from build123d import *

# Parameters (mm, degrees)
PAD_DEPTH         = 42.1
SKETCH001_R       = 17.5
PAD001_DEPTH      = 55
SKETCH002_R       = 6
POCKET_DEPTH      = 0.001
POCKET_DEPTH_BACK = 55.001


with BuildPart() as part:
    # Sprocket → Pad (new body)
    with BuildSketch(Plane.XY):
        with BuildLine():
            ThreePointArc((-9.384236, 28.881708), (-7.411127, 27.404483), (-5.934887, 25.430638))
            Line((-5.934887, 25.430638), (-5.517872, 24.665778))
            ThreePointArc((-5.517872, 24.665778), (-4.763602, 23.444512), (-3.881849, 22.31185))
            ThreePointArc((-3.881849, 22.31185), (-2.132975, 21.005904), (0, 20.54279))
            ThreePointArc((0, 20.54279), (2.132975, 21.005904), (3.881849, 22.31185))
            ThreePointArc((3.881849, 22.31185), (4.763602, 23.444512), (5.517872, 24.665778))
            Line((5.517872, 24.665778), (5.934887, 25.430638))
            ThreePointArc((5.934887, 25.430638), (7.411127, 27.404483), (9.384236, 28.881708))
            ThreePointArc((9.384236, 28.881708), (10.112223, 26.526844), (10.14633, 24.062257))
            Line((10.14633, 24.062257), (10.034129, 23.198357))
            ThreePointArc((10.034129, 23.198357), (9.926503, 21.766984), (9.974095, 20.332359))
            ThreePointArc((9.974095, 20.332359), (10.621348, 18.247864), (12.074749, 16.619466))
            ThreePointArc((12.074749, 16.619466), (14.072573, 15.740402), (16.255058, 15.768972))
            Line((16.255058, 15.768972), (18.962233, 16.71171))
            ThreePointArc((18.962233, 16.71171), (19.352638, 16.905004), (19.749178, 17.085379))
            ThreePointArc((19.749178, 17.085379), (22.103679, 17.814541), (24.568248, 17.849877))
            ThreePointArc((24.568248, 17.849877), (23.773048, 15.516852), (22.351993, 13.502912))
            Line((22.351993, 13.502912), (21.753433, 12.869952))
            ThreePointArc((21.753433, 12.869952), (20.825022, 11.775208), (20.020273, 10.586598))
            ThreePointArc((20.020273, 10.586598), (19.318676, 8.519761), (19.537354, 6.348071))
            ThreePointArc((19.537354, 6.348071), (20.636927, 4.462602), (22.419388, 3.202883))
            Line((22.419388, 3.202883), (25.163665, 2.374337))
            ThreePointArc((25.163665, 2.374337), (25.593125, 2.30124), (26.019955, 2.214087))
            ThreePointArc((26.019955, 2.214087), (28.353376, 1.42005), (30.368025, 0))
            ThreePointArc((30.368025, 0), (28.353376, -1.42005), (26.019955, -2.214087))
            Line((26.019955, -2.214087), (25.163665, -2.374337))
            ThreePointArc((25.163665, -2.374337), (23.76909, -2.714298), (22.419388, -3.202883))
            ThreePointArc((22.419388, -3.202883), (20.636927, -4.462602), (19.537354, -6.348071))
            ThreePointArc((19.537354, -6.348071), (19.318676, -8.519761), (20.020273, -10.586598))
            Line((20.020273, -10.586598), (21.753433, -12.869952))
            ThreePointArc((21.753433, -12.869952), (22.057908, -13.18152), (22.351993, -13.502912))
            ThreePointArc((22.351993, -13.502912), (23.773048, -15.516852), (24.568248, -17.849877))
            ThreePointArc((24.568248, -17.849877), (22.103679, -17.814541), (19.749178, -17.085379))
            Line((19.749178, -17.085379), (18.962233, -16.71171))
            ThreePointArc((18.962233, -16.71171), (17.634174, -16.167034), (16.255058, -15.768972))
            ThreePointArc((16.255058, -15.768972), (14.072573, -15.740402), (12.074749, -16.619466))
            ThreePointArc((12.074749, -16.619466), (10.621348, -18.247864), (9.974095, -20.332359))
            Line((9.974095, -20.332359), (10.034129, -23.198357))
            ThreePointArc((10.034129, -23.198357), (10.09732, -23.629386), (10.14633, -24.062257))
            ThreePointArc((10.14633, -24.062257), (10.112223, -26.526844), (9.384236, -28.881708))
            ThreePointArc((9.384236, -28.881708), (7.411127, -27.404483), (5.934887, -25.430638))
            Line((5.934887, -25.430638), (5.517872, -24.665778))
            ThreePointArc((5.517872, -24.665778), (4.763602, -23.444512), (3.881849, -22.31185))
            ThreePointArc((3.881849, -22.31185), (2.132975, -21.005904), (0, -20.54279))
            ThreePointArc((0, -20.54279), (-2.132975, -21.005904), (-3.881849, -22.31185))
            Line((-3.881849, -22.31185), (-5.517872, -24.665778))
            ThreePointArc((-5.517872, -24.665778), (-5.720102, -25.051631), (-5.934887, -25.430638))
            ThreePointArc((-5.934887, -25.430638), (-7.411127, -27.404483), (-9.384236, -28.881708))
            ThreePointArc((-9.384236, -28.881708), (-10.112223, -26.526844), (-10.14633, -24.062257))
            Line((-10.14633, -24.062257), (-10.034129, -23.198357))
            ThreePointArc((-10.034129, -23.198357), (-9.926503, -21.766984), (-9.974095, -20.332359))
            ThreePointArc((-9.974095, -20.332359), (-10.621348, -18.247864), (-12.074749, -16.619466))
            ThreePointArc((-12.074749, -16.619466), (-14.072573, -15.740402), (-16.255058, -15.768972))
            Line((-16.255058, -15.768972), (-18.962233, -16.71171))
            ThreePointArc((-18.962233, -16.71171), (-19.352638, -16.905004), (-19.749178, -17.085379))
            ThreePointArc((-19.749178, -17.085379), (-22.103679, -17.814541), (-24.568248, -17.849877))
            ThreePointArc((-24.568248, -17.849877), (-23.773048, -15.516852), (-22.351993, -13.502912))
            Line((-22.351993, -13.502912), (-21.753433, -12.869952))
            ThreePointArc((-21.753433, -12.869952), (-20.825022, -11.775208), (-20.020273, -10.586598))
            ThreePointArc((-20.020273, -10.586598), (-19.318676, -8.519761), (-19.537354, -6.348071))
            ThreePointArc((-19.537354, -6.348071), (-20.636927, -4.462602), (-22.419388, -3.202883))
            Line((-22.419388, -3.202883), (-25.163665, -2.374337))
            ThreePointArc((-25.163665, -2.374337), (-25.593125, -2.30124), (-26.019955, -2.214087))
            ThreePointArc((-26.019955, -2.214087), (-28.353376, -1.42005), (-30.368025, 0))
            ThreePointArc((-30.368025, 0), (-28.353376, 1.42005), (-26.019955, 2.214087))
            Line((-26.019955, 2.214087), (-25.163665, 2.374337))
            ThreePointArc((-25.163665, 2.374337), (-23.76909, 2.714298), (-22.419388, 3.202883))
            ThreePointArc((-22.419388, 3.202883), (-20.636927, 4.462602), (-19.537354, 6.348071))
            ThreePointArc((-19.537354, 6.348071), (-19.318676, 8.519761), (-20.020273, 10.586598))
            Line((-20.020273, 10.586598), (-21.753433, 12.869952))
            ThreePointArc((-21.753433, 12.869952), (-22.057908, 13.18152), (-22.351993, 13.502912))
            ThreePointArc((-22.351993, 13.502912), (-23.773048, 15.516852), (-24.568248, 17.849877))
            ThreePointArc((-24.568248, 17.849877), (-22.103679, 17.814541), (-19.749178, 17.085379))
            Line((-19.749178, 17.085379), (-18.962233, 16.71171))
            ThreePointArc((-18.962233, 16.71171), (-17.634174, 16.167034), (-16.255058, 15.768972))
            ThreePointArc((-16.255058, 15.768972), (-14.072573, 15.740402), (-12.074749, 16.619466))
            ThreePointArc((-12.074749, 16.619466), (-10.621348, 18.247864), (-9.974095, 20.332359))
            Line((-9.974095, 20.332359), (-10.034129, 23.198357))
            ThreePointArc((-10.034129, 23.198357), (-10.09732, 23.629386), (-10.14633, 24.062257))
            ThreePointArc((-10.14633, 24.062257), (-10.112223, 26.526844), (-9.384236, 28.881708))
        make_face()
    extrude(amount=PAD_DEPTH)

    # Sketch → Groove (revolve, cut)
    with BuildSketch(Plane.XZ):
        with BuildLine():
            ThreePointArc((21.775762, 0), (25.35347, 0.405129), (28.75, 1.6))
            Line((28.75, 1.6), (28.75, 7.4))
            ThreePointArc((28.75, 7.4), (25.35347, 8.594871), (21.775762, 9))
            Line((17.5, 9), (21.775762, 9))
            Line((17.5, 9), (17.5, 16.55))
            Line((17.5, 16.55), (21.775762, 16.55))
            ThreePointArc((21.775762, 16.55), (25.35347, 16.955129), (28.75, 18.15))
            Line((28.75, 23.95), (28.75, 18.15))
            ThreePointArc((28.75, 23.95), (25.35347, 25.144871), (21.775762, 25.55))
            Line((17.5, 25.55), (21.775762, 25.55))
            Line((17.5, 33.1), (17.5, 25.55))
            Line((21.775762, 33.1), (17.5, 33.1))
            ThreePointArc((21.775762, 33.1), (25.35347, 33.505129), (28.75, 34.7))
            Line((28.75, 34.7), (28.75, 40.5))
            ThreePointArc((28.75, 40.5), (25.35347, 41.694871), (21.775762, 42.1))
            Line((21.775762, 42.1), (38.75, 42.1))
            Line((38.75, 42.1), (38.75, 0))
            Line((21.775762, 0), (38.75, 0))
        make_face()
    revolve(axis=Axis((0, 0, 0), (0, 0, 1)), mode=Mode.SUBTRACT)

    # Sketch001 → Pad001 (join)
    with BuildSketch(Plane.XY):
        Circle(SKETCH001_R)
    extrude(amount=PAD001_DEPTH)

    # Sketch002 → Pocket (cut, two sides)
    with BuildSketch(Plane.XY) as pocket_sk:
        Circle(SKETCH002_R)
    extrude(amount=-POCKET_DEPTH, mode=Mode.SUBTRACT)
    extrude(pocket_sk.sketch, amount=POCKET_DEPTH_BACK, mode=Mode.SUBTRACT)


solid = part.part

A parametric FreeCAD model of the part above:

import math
import FreeCAD as App
import Part
import Sketcher

V = App.Vector
Q = App.Units.Quantity

doc = App.newDocument("Part")
body = doc.addObject("PartDesign::Body", "Body")

# Sketch on XY plane
sketch1 = body.newObject("Sketcher::SketchObject", "Sketch")
sketch1.AttachmentSupport = (doc.getObject("XY_Plane"), [""])
sketch1.MapMode = "FlatFace"
sketch1.addGeometry([
    Part.ArcOfCircle(Part.Circle(V(-13.527819, 21.290842, 0), V(0, 0, 1), 8.648151), math.radians(28.599971), math.radians(61.371449)),  # 0
    Part.ArcOfCircle(Part.Circle(V(-1.570193, 25.176103, 0), V(0, 0, 1), 8.648166), math.radians(154.628578), math.radians(187.400001)),  # 1
    Part.ArcOfCircle(Part.Circle(V(3.063298, 25.338652, 0), V(0, 0, 1), 13.271151), math.radians(-174.480867), math.radians(-170.719135)),  # 2
    Part.LineSegment(V(-10.034129, 23.198357, 0), V(-9.974095, 20.332359, 0)),  # 3
    Part.ArcOfCircle(Part.Circle(V(-15.098022, 20.780645, 0), V(0, 0, 1), 5.143499), math.radians(-54.000004), math.radians(-5.000001)),  # 4
    Part.ArcOfCircle(Part.Circle(V(-15.098023, 20.780644, 0), V(0, 0, 1), 5.1435), math.radians(-102.999995), math.radians(-53.999991)),  # 5
    Part.ArcOfCircle(Part.Circle(V(-13.269585, 28.700426, 0), V(0, 0, 1), 13.271606), math.radians(-115.399949), math.radians(-103.000048)),  # 6
    Part.LineSegment(V(-18.962233, 16.71171, 0), V(-19.749178, 17.085379, 0)),  # 7
    Part.ArcOfCircle(Part.Circle(V(-23.458679, 9.273194, 0), V(0, 0, 1), 8.648158), math.radians(64.599981), math.radians(97.371435)),  # 8
    Part.ArcOfCircle(Part.Circle(V(-16.068465, 19.444953, 0), V(0, 0, 1), 8.648155), math.radians(-169.371442), math.radians(-136.59998)),  # 9
    Part.ArcOfCircle(Part.Circle(V(-12.414697, 22.300643, 0), V(0, 0, 1), 13.272148), math.radians(-138.480749), math.radians(-134.7193)),  # 10
    Part.LineSegment(V(-21.753433, 12.869952, 0), V(-20.020273, 10.586598, 0)),  # 11
    Part.ArcOfCircle(Part.Circle(V(-24.429109, 7.9375, 0), V(0, 0, 1), 5.143496), math.radians(-18.00002), math.radians(31.000016)),  # 12
    Part.ArcOfCircle(Part.Circle(V(-24.429114, 7.9375, 0), V(0, 0, 1), 5.143501), math.radians(-67), math.radians(-18.000004)),  # 13
    Part.ArcOfCircle(Part.Circle(V(-27.604988, 15.419404, 0), V(0, 0, 1), 13.271542), math.radians(-79.39998), math.radians(-67.000023)),  # 14
    Part.LineSegment(V(-25.163665, 2.374337, 0), V(-26.019955, 2.214087, 0)),  # 15
    Part.ArcOfCircle(Part.Circle(V(-24.42911, -6.286506, 0), V(0, 0, 1), 8.648172), math.radians(100.600015), math.radians(133.371415)),  # 16
    Part.ArcOfCircle(Part.Circle(V(-24.42911, 6.286506, 0), V(0, 0, 1), 8.648172), math.radians(-133.371415), math.radians(-100.600015)),  # 17
    Part.ArcOfCircle(Part.Circle(V(-23.151849, 10.743632, 0), V(0, 0, 1), 13.271342), math.radians(-102.480819), math.radians(-98.71914)),  # 18
    Part.LineSegment(V(-25.163665, -2.374337, 0), V(-22.419388, -3.202883, 0)),  # 19
    Part.ArcOfCircle(Part.Circle(V(-24.429114, -7.9375, 0), V(0, 0, 1), 5.143501), math.radians(18.000004), math.radians(67)),  # 20
    Part.ArcOfCircle(Part.Circle(V(-24.429109, -7.9375, 0), V(0, 0, 1), 5.143496), math.radians(-31.000016), math.radians(18.00002)),  # 21
    Part.ArcOfCircle(Part.Circle(V(-31.396112, -3.751313, 0), V(0, 0, 1), 13.271429), math.radians(-43.400033), math.radians(-30.999967)),  # 22
    Part.LineSegment(V(-21.753433, -12.869952, 0), V(-22.351993, -13.502912, 0)),  # 23
    Part.ArcOfCircle(Part.Circle(V(-16.068465, -19.444953, 0), V(0, 0, 1), 8.648155), math.radians(136.59998), math.radians(169.371442)),  # 24
    Part.ArcOfCircle(Part.Circle(V(-23.458679, -9.273194, 0), V(0, 0, 1), 8.648158), math.radians(-97.371435), math.radians(-64.599981)),  # 25
    Part.ArcOfCircle(Part.Circle(V(-25.044465, -4.918046, 0), V(0, 0, 1), 13.269667), math.radians(-66.481072), math.radians(-62.718923)),  # 26
    Part.LineSegment(V(-18.962233, -16.71171, 0), V(-16.255058, -15.768972, 0)),  # 27
    Part.ArcOfCircle(Part.Circle(V(-15.098023, -20.780644, 0), V(0, 0, 1), 5.1435), math.radians(53.999991), math.radians(102.999995)),  # 28
    Part.ArcOfCircle(Part.Circle(V(-15.098022, -20.780645, 0), V(0, 0, 1), 5.143499), math.radians(5.000001), math.radians(54.000004)),  # 29
    Part.ArcOfCircle(Part.Circle(V(-23.194997, -21.489049, 0), V(0, 0, 1), 13.271405), math.radians(-7.400042), math.radians(5.000046)),  # 30
    Part.LineSegment(V(-10.034129, -23.198357, 0), V(-10.14633, -24.062257, 0)),  # 31
    Part.ArcOfCircle(Part.Circle(V(-1.570193, -25.176103, 0), V(0, 0, 1), 8.648166), math.radians(172.599999), math.radians(205.371422)),  # 32
    Part.ArcOfCircle(Part.Circle(V(-13.527819, -21.290842, 0), V(0, 0, 1), 8.648151), math.radians(-61.371449), math.radians(-28.599971)),  # 33
    Part.ArcOfCircle(Part.Circle(V(-17.371892, -18.698872, 0), V(0, 0, 1), 13.271087), math.radians(-30.480863), math.radians(-26.719113)),  # 34
    Part.LineSegment(V(-5.517872, -24.665778, 0), V(-3.881849, -22.31185, 0)),  # 35
    Part.ArcOfCircle(Part.Circle(V(-0.000001, -25.686289, 0), V(0, 0, 1), 5.143499), math.radians(89.99999), math.radians(138.999997)),  # 36
    Part.ArcOfCircle(Part.Circle(V(0.000001, -25.686289, 0), V(0, 0, 1), 5.143499), math.radians(41.000003), math.radians(90.00001)),  # 37
    Part.ArcOfCircle(Part.Circle(V(-6.134339, -31.018781, 0), V(0, 0, 1), 13.271574), math.radians(28.600042), math.radians(40.999972)),  # 38
    Part.LineSegment(V(5.517872, -24.665778, 0), V(5.934887, -25.430638, 0)),  # 39
    Part.ArcOfCircle(Part.Circle(V(13.527819, -21.290842, 0), V(0, 0, 1), 8.648151), math.radians(-151.400029), math.radians(-118.628551)),  # 40
    Part.ArcOfCircle(Part.Circle(V(1.570193, -25.176103, 0), V(0, 0, 1), 8.648166), math.radians(-25.371422), math.radians(7.400001)),  # 41
    Part.ArcOfCircle(Part.Circle(V(-3.063298, -25.338652, 0), V(0, 0, 1), 13.271151), math.radians(5.519133), math.radians(9.280865)),  # 42
    Part.LineSegment(V(10.034129, -23.198357, 0), V(9.974095, -20.332359, 0)),  # 43
    Part.ArcOfCircle(Part.Circle(V(15.098022, -20.780645, 0), V(0, 0, 1), 5.143499), math.radians(125.999996), math.radians(174.999999)),  # 44
    Part.ArcOfCircle(Part.Circle(V(15.098023, -20.780644, 0), V(0, 0, 1), 5.1435), math.radians(77.000005), math.radians(126.000009)),  # 45
    Part.ArcOfCircle(Part.Circle(V(13.269585, -28.700426, 0), V(0, 0, 1), 13.271606), math.radians(64.600051), math.radians(76.999952)),  # 46
    Part.LineSegment(V(18.962233, -16.71171, 0), V(19.749178, -17.085379, 0)),  # 47
    Part.ArcOfCircle(Part.Circle(V(23.458679, -9.273194, 0), V(0, 0, 1), 8.648158), math.radians(-115.400019), math.radians(-82.628565)),  # 48
    Part.ArcOfCircle(Part.Circle(V(16.068465, -19.444953, 0), V(0, 0, 1), 8.648155), math.radians(10.628558), math.radians(43.40002)),  # 49
    Part.ArcOfCircle(Part.Circle(V(12.414697, -22.300643, 0), V(0, 0, 1), 13.272148), math.radians(41.519251), math.radians(45.2807)),  # 50
    Part.LineSegment(V(21.753433, -12.869952, 0), V(20.020273, -10.586598, 0)),  # 51
    Part.ArcOfCircle(Part.Circle(V(24.429109, -7.9375, 0), V(0, 0, 1), 5.143496), math.radians(161.99998), math.radians(211.000016)),  # 52
    Part.ArcOfCircle(Part.Circle(V(24.429114, -7.9375, 0), V(0, 0, 1), 5.143501), math.radians(113), math.radians(161.999996)),  # 53
    Part.ArcOfCircle(Part.Circle(V(27.604988, -15.419404, 0), V(0, 0, 1), 13.271542), math.radians(100.60002), math.radians(112.999977)),  # 54
    Part.LineSegment(V(25.163665, -2.374337, 0), V(26.019955, -2.214087, 0)),  # 55
    Part.ArcOfCircle(Part.Circle(V(24.42911, 6.286506, 0), V(0, 0, 1), 8.648172), math.radians(-79.399985), math.radians(-46.628585)),  # 56
    Part.ArcOfCircle(Part.Circle(V(24.42911, -6.286506, 0), V(0, 0, 1), 8.648172), math.radians(46.628585), math.radians(79.399985)),  # 57
    Part.ArcOfCircle(Part.Circle(V(23.151849, -10.743632, 0), V(0, 0, 1), 13.271342), math.radians(77.519181), math.radians(81.28086)),  # 58
    Part.LineSegment(V(25.163665, 2.374337, 0), V(22.419388, 3.202883, 0)),  # 59
    Part.ArcOfCircle(Part.Circle(V(24.429114, 7.9375, 0), V(0, 0, 1), 5.143501), math.radians(-161.999996), math.radians(-113)),  # 60
    Part.ArcOfCircle(Part.Circle(V(24.429109, 7.9375, 0), V(0, 0, 1), 5.143496), math.radians(148.999984), math.radians(198.00002)),  # 61
    Part.ArcOfCircle(Part.Circle(V(31.396112, 3.751313, 0), V(0, 0, 1), 13.271429), math.radians(136.599967), math.radians(149.000033)),  # 62
    Part.LineSegment(V(21.753433, 12.869952, 0), V(22.351993, 13.502912, 0)),  # 63
    Part.ArcOfCircle(Part.Circle(V(16.068465, 19.444953, 0), V(0, 0, 1), 8.648155), math.radians(-43.40002), math.radians(-10.628558)),  # 64
    Part.ArcOfCircle(Part.Circle(V(23.458679, 9.273194, 0), V(0, 0, 1), 8.648158), math.radians(82.628565), math.radians(115.400019)),  # 65
    Part.ArcOfCircle(Part.Circle(V(25.044465, 4.918046, 0), V(0, 0, 1), 13.269667), math.radians(113.518928), math.radians(117.281077)),  # 66
    Part.LineSegment(V(18.962233, 16.71171, 0), V(16.255058, 15.768972, 0)),  # 67
    Part.ArcOfCircle(Part.Circle(V(15.098023, 20.780644, 0), V(0, 0, 1), 5.1435), math.radians(-126.000009), math.radians(-77.000005)),  # 68
    Part.ArcOfCircle(Part.Circle(V(15.098022, 20.780645, 0), V(0, 0, 1), 5.143499), math.radians(-174.999999), math.radians(-125.999996)),  # 69
    Part.ArcOfCircle(Part.Circle(V(23.194997, 21.489049, 0), V(0, 0, 1), 13.271405), math.radians(172.599958), math.radians(185.000046)),  # 70
    Part.LineSegment(V(10.034129, 23.198357, 0), V(10.14633, 24.062257, 0)),  # 71
    Part.ArcOfCircle(Part.Circle(V(1.570193, 25.176103, 0), V(0, 0, 1), 8.648166), math.radians(-7.400001), math.radians(25.371422)),  # 72
    Part.ArcOfCircle(Part.Circle(V(13.527819, 21.290842, 0), V(0, 0, 1), 8.648151), math.radians(118.628551), math.radians(151.400029)),  # 73
    Part.LineSegment(V(5.934887, 25.430638, 0), V(5.517872, 24.665778, 0)),  # 74
    Part.ArcOfCircle(Part.Circle(V(-6.134339, 31.018781, 0), V(0, 0, 1), 13.271574), math.radians(-40.999972), math.radians(-28.600042)),  # 75
    Part.ArcOfCircle(Part.Circle(V(0.000001, 25.686289, 0), V(0, 0, 1), 5.143499), math.radians(-90.00001), math.radians(-41.000003)),  # 76
    Part.ArcOfCircle(Part.Circle(V(-0.000001, 25.686289, 0), V(0, 0, 1), 5.143499), math.radians(-138.999997), math.radians(-89.99999)),  # 77
    Part.ArcOfCircle(Part.Circle(V(6.134339, 31.018781, 0), V(0, 0, 1), 13.271574), math.radians(-151.399958), math.radians(-139.000028)),  # 78
    Part.LineSegment(V(-5.517872, 24.665778, 0), V(-5.934887, 25.430638, 0)),  # 79
], False)
sketch1.addConstraint([
    Sketcher.Constraint("Coincident", 0, 2, 1, 1),
    Sketcher.Constraint("Coincident", 1, 2, 2, 1),
    Sketcher.Constraint("Coincident", 2, 2, 3, 1),
    Sketcher.Constraint("Coincident", 3, 2, 4, 2),
    Sketcher.Constraint("Coincident", 4, 1, 5, 2),
    Sketcher.Constraint("Coincident", 5, 1, 6, 2),
    Sketcher.Constraint("Coincident", 6, 1, 7, 1),
    Sketcher.Constraint("Coincident", 7, 2, 8, 1),
    Sketcher.Constraint("Coincident", 8, 2, 9, 1),
    Sketcher.Constraint("Coincident", 9, 2, 10, 1),
    Sketcher.Constraint("Coincident", 10, 2, 11, 1),
    Sketcher.Constraint("Coincident", 11, 2, 12, 2),
    Sketcher.Constraint("Coincident", 12, 1, 13, 2),
    Sketcher.Constraint("Coincident", 13, 1, 14, 2),
    Sketcher.Constraint("Coincident", 14, 1, 15, 1),
    Sketcher.Constraint("Coincident", 15, 2, 16, 1),
    Sketcher.Constraint("Coincident", 16, 2, 17, 1),
    Sketcher.Constraint("Coincident", 17, 2, 18, 1),
    Sketcher.Constraint("Coincident", 18, 2, 19, 1),
    Sketcher.Constraint("Coincident", 19, 2, 20, 2),
    Sketcher.Constraint("Coincident", 20, 1, 21, 2),
    Sketcher.Constraint("Coincident", 21, 1, 22, 2),
    Sketcher.Constraint("Coincident", 22, 1, 23, 1),
    Sketcher.Constraint("Coincident", 23, 2, 24, 1),
    Sketcher.Constraint("Coincident", 24, 2, 25, 1),
    Sketcher.Constraint("Coincident", 25, 2, 26, 1),
    Sketcher.Constraint("Coincident", 26, 2, 27, 1),
    Sketcher.Constraint("Coincident", 27, 2, 28, 2),
    Sketcher.Constraint("Coincident", 28, 1, 29, 2),
    Sketcher.Constraint("Coincident", 29, 1, 30, 2),
    Sketcher.Constraint("Coincident", 30, 1, 31, 1),
    Sketcher.Constraint("Coincident", 31, 2, 32, 1),
    Sketcher.Constraint("Coincident", 32, 2, 33, 1),
    Sketcher.Constraint("Coincident", 33, 2, 34, 1),
    Sketcher.Constraint("Coincident", 34, 2, 35, 1),
    Sketcher.Constraint("Coincident", 35, 2, 36, 2),
    Sketcher.Constraint("Coincident", 36, 1, 37, 2),
    Sketcher.Constraint("Coincident", 37, 1, 38, 2),
    Sketcher.Constraint("Coincident", 38, 1, 39, 1),
    Sketcher.Constraint("Coincident", 39, 2, 40, 1),
    Sketcher.Constraint("Coincident", 40, 2, 41, 1),
    Sketcher.Constraint("Coincident", 41, 2, 42, 1),
    Sketcher.Constraint("Coincident", 42, 2, 43, 1),
    Sketcher.Constraint("Coincident", 43, 2, 44, 2),
    Sketcher.Constraint("Coincident", 44, 1, 45, 2),
    Sketcher.Constraint("Coincident", 45, 1, 46, 2),
    Sketcher.Constraint("Coincident", 46, 1, 47, 1),
    Sketcher.Constraint("Coincident", 47, 2, 48, 1),
    Sketcher.Constraint("Coincident", 48, 2, 49, 1),
    Sketcher.Constraint("Coincident", 49, 2, 50, 1),
    Sketcher.Constraint("Coincident", 50, 2, 51, 1),
    Sketcher.Constraint("Coincident", 51, 2, 52, 2),
    Sketcher.Constraint("Coincident", 52, 1, 53, 2),
    Sketcher.Constraint("Coincident", 53, 1, 54, 2),
    Sketcher.Constraint("Coincident", 54, 1, 55, 1),
    Sketcher.Constraint("Coincident", 55, 2, 56, 1),
    Sketcher.Constraint("Coincident", 56, 2, 57, 1),
    Sketcher.Constraint("Coincident", 57, 2, 58, 1),
    Sketcher.Constraint("Coincident", 58, 2, 59, 1),
    Sketcher.Constraint("Coincident", 59, 2, 60, 2),
    Sketcher.Constraint("Coincident", 60, 1, 61, 2),
    Sketcher.Constraint("Coincident", 61, 1, 62, 2),
    Sketcher.Constraint("Coincident", 62, 1, 63, 1),
    Sketcher.Constraint("Coincident", 63, 2, 64, 1),
    Sketcher.Constraint("Coincident", 64, 2, 65, 1),
    Sketcher.Constraint("Coincident", 65, 2, 66, 1),
    Sketcher.Constraint("Coincident", 66, 2, 67, 1),
    Sketcher.Constraint("Coincident", 67, 2, 68, 2),
    Sketcher.Constraint("Coincident", 68, 1, 69, 2),
    Sketcher.Constraint("Coincident", 69, 1, 70, 2),
    Sketcher.Constraint("Coincident", 70, 1, 71, 1),
    Sketcher.Constraint("Coincident", 71, 2, 72, 1),
    Sketcher.Constraint("Coincident", 72, 2, 73, 1),
    Sketcher.Constraint("Coincident", 73, 2, 74, 1),
    Sketcher.Constraint("Coincident", 74, 2, 75, 2),
    Sketcher.Constraint("Coincident", 75, 1, 76, 2),
    Sketcher.Constraint("Coincident", 76, 1, 77, 2),
    Sketcher.Constraint("Coincident", 77, 1, 78, 2),
    Sketcher.Constraint("Coincident", 78, 1, 79, 1),
    Sketcher.Constraint("Coincident", 79, 2, 0, 1),
    Sketcher.Constraint("Coincident", 5, 3, 4, 3),
    Sketcher.Constraint("Coincident", 13, 3, 12, 3),
    Sketcher.Constraint("Coincident", 21, 3, 20, 3),
    Sketcher.Constraint("Coincident", 29, 3, 28, 3),
    Sketcher.Constraint("Coincident", 37, 3, 36, 3),
    Sketcher.Constraint("Coincident", 45, 3, 44, 3),
    Sketcher.Constraint("Coincident", 53, 3, 52, 3),
    Sketcher.Constraint("Coincident", 61, 3, 60, 3),
    Sketcher.Constraint("Coincident", 69, 3, 68, 3),
    Sketcher.Constraint("Coincident", 77, 3, 76, 3),
    Sketcher.Constraint("PointOnObject", 36, 3, -2),
    Sketcher.Constraint("PointOnObject", 76, 3, -2),
    Sketcher.Constraint("PointOnObject", 16, 2, -1),
    Sketcher.Constraint("PointOnObject", 36, 1, -2),
    Sketcher.Constraint("PointOnObject", 56, 2, -1),
    Sketcher.Constraint("PointOnObject", 76, 1, -2),
    Sketcher.Constraint("Radius", 4, Q("5.143499 mm")),
    Sketcher.Constraint("Radius", 13, Q("5.143501 mm")),
    Sketcher.Constraint("Radius", 20, Q("5.143501 mm")),
    Sketcher.Constraint("Radius", 28, Q("5.1435 mm")),
    Sketcher.Constraint("Radius", 36, Q("5.143499 mm")),
    Sketcher.Constraint("Radius", 44, Q("5.143499 mm")),
    Sketcher.Constraint("Radius", 53, Q("5.143501 mm")),
    Sketcher.Constraint("Radius", 60, Q("5.143501 mm")),
    Sketcher.Constraint("Radius", 68, Q("5.1435 mm")),
    Sketcher.Constraint("Radius", 76, Q("5.143499 mm")),
    Sketcher.Constraint("Radius", 0, Q("8.648151 mm")),
    Sketcher.Constraint("Radius", 2, Q("13.271151 mm")),
    Sketcher.Constraint("Radius", 10, Q("13.272148 mm")),
    Sketcher.Constraint("Radius", 14, Q("13.271542 mm")),
    Sketcher.Constraint("Radius", 16, Q("8.648172 mm")),
    Sketcher.Constraint("Radius", 17, Q("8.648172 mm")),
    Sketcher.Constraint("Radius", 18, Q("13.271342 mm")),
    Sketcher.Constraint("Radius", 22, Q("13.271429 mm")),
    Sketcher.Constraint("Radius", 33, Q("8.648151 mm")),
    Sketcher.Constraint("Radius", 40, Q("8.648151 mm")),
    Sketcher.Constraint("Radius", 42, Q("13.271151 mm")),
    Sketcher.Constraint("Radius", 50, Q("13.272148 mm")),
    Sketcher.Constraint("Radius", 54, Q("13.271542 mm")),
    Sketcher.Constraint("Radius", 56, Q("8.648172 mm")),
    Sketcher.Constraint("Radius", 57, Q("8.648172 mm")),
    Sketcher.Constraint("Radius", 58, Q("13.271342 mm")),
    Sketcher.Constraint("Radius", 62, Q("13.271429 mm")),
    Sketcher.Constraint("Radius", 73, Q("8.648151 mm")),
    Sketcher.Constraint("Radius", 1, Q("8.648166 mm")),
    Sketcher.Constraint("Radius", 6, Q("13.271606 mm")),
    Sketcher.Constraint("Radius", 8, Q("8.648158 mm")),
    Sketcher.Constraint("Radius", 9, Q("8.648155 mm")),
    Sketcher.Constraint("Radius", 24, Q("8.648155 mm")),
    Sketcher.Constraint("Radius", 25, Q("8.648158 mm")),
    Sketcher.Constraint("Radius", 26, Q("13.269667 mm")),
    Sketcher.Constraint("Radius", 30, Q("13.271405 mm")),
    Sketcher.Constraint("Radius", 32, Q("8.648166 mm")),
    Sketcher.Constraint("Radius", 34, Q("13.271087 mm")),
    Sketcher.Constraint("Radius", 38, Q("13.271574 mm")),
    Sketcher.Constraint("Radius", 41, Q("8.648166 mm")),
    Sketcher.Constraint("Radius", 46, Q("13.271606 mm")),
    Sketcher.Constraint("Radius", 48, Q("8.648158 mm")),
    Sketcher.Constraint("Radius", 49, Q("8.648155 mm")),
    Sketcher.Constraint("Radius", 64, Q("8.648155 mm")),
    Sketcher.Constraint("Radius", 65, Q("8.648158 mm")),
    Sketcher.Constraint("Radius", 66, Q("13.269667 mm")),
    Sketcher.Constraint("Radius", 70, Q("13.271405 mm")),
    Sketcher.Constraint("Radius", 72, Q("8.648166 mm")),
    Sketcher.Constraint("Radius", 75, Q("13.271574 mm")),
    Sketcher.Constraint("Radius", 78, Q("13.271574 mm")),
    Sketcher.Constraint("DistanceX", -1, 1, 2, 3, Q("3.063298 mm")),
    Sketcher.Constraint("DistanceY", -1, 1, 12, 3, Q("7.9375 mm")),
    Sketcher.Constraint("DistanceY", 20, 3, -1, 1, Q("7.9375 mm")),
    Sketcher.Constraint("DistanceX", 42, 3, -1, 1, Q("3.063298 mm")),
    Sketcher.Constraint("DistanceY", 52, 3, -1, 1, Q("7.9375 mm")),
    Sketcher.Constraint("DistanceY", -1, 1, 60, 3, Q("7.9375 mm")),
    Sketcher.Constraint("DistanceX", 0, 3, -1, 1, Q("13.527819 mm")),
    Sketcher.Constraint("DistanceY", -1, 1, 2, 3, Q("25.338652 mm")),
    Sketcher.Constraint("DistanceX", 4, 3, -1, 1, Q("15.098022 mm")),
    Sketcher.Constraint("DistanceX", 8, 3, -1, 1, Q("23.458679 mm")),
    Sketcher.Constraint("DistanceX", 12, 3, -1, 1, Q("24.429109 mm")),
    Sketcher.Constraint("DistanceX", 16, 3, -1, 1, Q("24.42911 mm")),
    Sketcher.Constraint("DistanceX", 17, 3, -1, 1, Q("24.42911 mm")),
    Sketcher.Constraint("DistanceX", 18, 3, -1, 1, Q("23.151849 mm")),
    Sketcher.Constraint("DistanceX", 21, 3, -1, 1, Q("24.429109 mm")),
    Sketcher.Constraint("DistanceX", 25, 3, -1, 1, Q("23.458679 mm")),
    Sketcher.Constraint("DistanceX", 29, 3, -1, 1, Q("15.098022 mm")),
    Sketcher.Constraint("DistanceY", 30, 3, -1, 1, Q("21.489049 mm")),
    Sketcher.Constraint("DistanceX", 33, 3, -1, 1, Q("13.527819 mm")),
    Sketcher.Constraint("DistanceX", 34, 3, -1, 1, Q("17.371892 mm")),
    Sketcher.Constraint("DistanceY", 34, 3, -1, 1, Q("18.698872 mm")),
    Sketcher.Constraint("DistanceY", 36, 3, -1, 1, Q("25.686289 mm")),
    Sketcher.Constraint("DistanceX", 38, 3, -1, 1, Q("6.134339 mm")),
    Sketcher.Constraint("DistanceX", -1, 1, 40, 3, Q("13.527819 mm")),
    Sketcher.Constraint("DistanceY", 42, 3, -1, 1, Q("25.338652 mm")),
    Sketcher.Constraint("DistanceX", -1, 1, 44, 3, Q("15.098022 mm")),
    Sketcher.Constraint("DistanceX", -1, 1, 48, 3, Q("23.458679 mm")),
    Sketcher.Constraint("DistanceX", -1, 1, 52, 3, Q("24.429109 mm")),
    Sketcher.Constraint("DistanceX", -1, 1, 56, 3, Q("24.42911 mm")),
    Sketcher.Constraint("DistanceX", -1, 1, 57, 3, Q("24.42911 mm")),
    Sketcher.Constraint("DistanceX", -1, 1, 58, 3, Q("23.151849 mm")),
    Sketcher.Constraint("DistanceX", -1, 1, 61, 3, Q("24.429109 mm")),
    Sketcher.Constraint("DistanceX", -1, 1, 65, 3, Q("23.458679 mm")),
    Sketcher.Constraint("DistanceX", -1, 1, 69, 3, Q("15.098022 mm")),
    Sketcher.Constraint("DistanceY", -1, 1, 70, 3, Q("21.489049 mm")),
    Sketcher.Constraint("DistanceX", -1, 1, 73, 3, Q("13.527819 mm")),
    Sketcher.Constraint("DistanceX", 75, 3, -1, 1, Q("6.134339 mm")),
    Sketcher.Constraint("DistanceY", -1, 1, 75, 3, Q("31.018781 mm")),
    Sketcher.Constraint("DistanceX", -1, 1, 78, 3, Q("6.134339 mm")),
    Sketcher.Constraint("DistanceX", 1, 2, -1, 1, Q("10.14633 mm")),
    Sketcher.Constraint("DistanceX", 2, 2, -1, 1, Q("10.034129 mm")),
    Sketcher.Constraint("DistanceY", -1, 1, 3, 2, Q("20.332359 mm")),
    Sketcher.Constraint("DistanceX", 4, 1, -1, 1, Q("12.074749 mm")),
    Sketcher.Constraint("DistanceX", 5, 1, -1, 1, Q("16.255058 mm")),
    Sketcher.Constraint("DistanceY", -1, 1, 5, 1, Q("15.768972 mm")),
    Sketcher.Constraint("DistanceY", -1, 1, 6, 1, Q("16.71171 mm")),
    Sketcher.Constraint("DistanceX", 7, 2, -1, 1, Q("19.749178 mm")),
    Sketcher.Constraint("DistanceY", -1, 1, 7, 2, Q("17.085379 mm")),
    Sketcher.Constraint("DistanceX", 8, 2, -1, 1, Q("24.568248 mm")),
    Sketcher.Constraint("DistanceY", -1, 1, 12, 1, Q("6.348071 mm")),
    Sketcher.Constraint("DistanceX", 13, 1, -1, 1, Q("22.419388 mm")),
    Sketcher.Constraint("DistanceX", 19, 2, -1, 1, Q("22.419388 mm")),
    Sketcher.Constraint("DistanceY", 20, 1, -1, 1, Q("6.348071 mm")),
    Sketcher.Constraint("DistanceY", 22, 1, -1, 1, Q("12.869952 mm")),
    Sketcher.Constraint("DistanceX", 25, 2, -1, 1, Q("19.749178 mm")),
    Sketcher.Constraint("DistanceY", 25, 2, -1, 1, Q("17.085379 mm")),
    Sketcher.Constraint("DistanceY", 26, 2, -1, 1, Q("16.71171 mm")),
    Sketcher.Constraint("DistanceX", 28, 1, -1, 1, Q("12.074749 mm")),
    Sketcher.Constraint("DistanceY", 29, 1, -1, 1, Q("20.332359 mm")),
    Sketcher.Constraint("DistanceX", 30, 1, -1, 1, Q("10.034129 mm")),
    Sketcher.Constraint("DistanceX", 31, 2, -1, 1, Q("10.14633 mm")),
    Sketcher.Constraint("DistanceY", 32, 2, -1, 1, Q("28.881708 mm")),
    Sketcher.Constraint("DistanceX", 34, 2, -1, 1, Q("5.517872 mm")),
    Sketcher.Constraint("DistanceX", 35, 2, -1, 1, Q("3.881849 mm")),
    Sketcher.Constraint("DistanceX", -1, 1, 37, 1, Q("3.881849 mm")),
    Sketcher.Constraint("DistanceX", -1, 1, 41, 2, Q("10.14633 mm")),
    Sketcher.Constraint("DistanceX", -1, 1, 42, 2, Q("10.034129 mm")),
    Sketcher.Constraint("DistanceY", 43, 2, -1, 1, Q("20.332359 mm")),
    Sketcher.Constraint("DistanceX", -1, 1, 44, 1, Q("12.074749 mm")),
    Sketcher.Constraint("DistanceX", -1, 1, 45, 1, Q("16.255058 mm")),
    Sketcher.Constraint("DistanceY", 45, 1, -1, 1, Q("15.768972 mm")),
    Sketcher.Constraint("DistanceY", 46, 1, -1, 1, Q("16.71171 mm")),
    Sketcher.Constraint("DistanceX", -1, 1, 47, 2, Q("19.749178 mm")),
    Sketcher.Constraint("DistanceY", 47, 2, -1, 1, Q("17.085379 mm")),
    Sketcher.Constraint("DistanceX", -1, 1, 48, 2, Q("24.568248 mm")),
    Sketcher.Constraint("DistanceY", 52, 1, -1, 1, Q("6.348071 mm")),
    Sketcher.Constraint("DistanceX", -1, 1, 53, 1, Q("22.419388 mm")),
    Sketcher.Constraint("DistanceX", -1, 1, 59, 2, Q("22.419388 mm")),
    Sketcher.Constraint("DistanceY", -1, 1, 60, 1, Q("6.348071 mm")),
    Sketcher.Constraint("DistanceY", -1, 1, 62, 1, Q("12.869952 mm")),
    Sketcher.Constraint("DistanceX", -1, 1, 65, 2, Q("19.749178 mm")),
    Sketcher.Constraint("DistanceY", -1, 1, 65, 2, Q("17.085379 mm")),
    Sketcher.Constraint("DistanceY", -1, 1, 66, 2, Q("16.71171 mm")),
    Sketcher.Constraint("DistanceX", -1, 1, 68, 1, Q("12.074749 mm")),
    Sketcher.Constraint("DistanceY", -1, 1, 69, 1, Q("20.332359 mm")),
    Sketcher.Constraint("DistanceX", -1, 1, 70, 1, Q("10.034129 mm")),
    Sketcher.Constraint("DistanceX", -1, 1, 71, 2, Q("10.14633 mm")),
    Sketcher.Constraint("DistanceY", -1, 1, 72, 2, Q("28.881708 mm")),
    Sketcher.Constraint("DistanceX", -1, 1, 74, 2, Q("5.517872 mm")),
    Sketcher.Constraint("DistanceX", -1, 1, 75, 1, Q("3.881849 mm")),
    Sketcher.Constraint("DistanceX", 77, 1, -1, 1, Q("3.881849 mm")),
    Sketcher.Constraint("Distance", 7, Q("0.871155 mm")),
    Sketcher.Constraint("Distance", 11, Q("2.866627 mm")),
    Sketcher.Constraint("Distance", 15, Q("0.871156 mm")),
    Sketcher.Constraint("Distance", 19, Q("2.866626 mm")),
    Sketcher.Constraint("Distance", 23, Q("0.871156 mm")),
    Sketcher.Constraint("Distance", 27, Q("2.866627 mm")),
    Sketcher.Constraint("Distance", 31, Q("0.871156 mm")),
    Sketcher.Constraint("Distance", 39, Q("0.871156 mm")),
    Sketcher.Constraint("Distance", 47, Q("0.871155 mm")),
    Sketcher.Constraint("Distance", 51, Q("2.866627 mm")),
    Sketcher.Constraint("Distance", 55, Q("0.871156 mm")),
    Sketcher.Constraint("Distance", 59, Q("2.866626 mm")),
    Sketcher.Constraint("Distance", 63, Q("0.871156 mm")),
    Sketcher.Constraint("Distance", 67, Q("2.866627 mm")),
    Sketcher.Constraint("Distance", 71, Q("0.871156 mm")),
    Sketcher.Constraint("Distance", 74, Q("0.871156 mm")),
    Sketcher.Constraint("Distance", 79, Q("0.871156 mm")),
    Sketcher.Constraint("DistanceY", -1, 1, 0, 3, Q("21.290842 mm")),
    Sketcher.Constraint("DistanceX", 1, 3, -1, 1, Q("1.570193 mm")),
    Sketcher.Constraint("DistanceX", 9, 3, -1, 1, Q("16.068465 mm")),
    Sketcher.Constraint("DistanceX", 10, 3, -1, 1, Q("12.414697 mm")),
    Sketcher.Constraint("DistanceY", -1, 1, 10, 3, Q("22.300643 mm")),
    Sketcher.Constraint("DistanceX", 14, 3, -1, 1, Q("27.604988 mm")),
    Sketcher.Constraint("DistanceY", 16, 3, -1, 1, Q("6.286506 mm")),
    Sketcher.Constraint("DistanceY", -1, 1, 18, 3, Q("10.743632 mm")),
    Sketcher.Constraint("DistanceX", 22, 3, -1, 1, Q("31.396112 mm")),
    Sketcher.Constraint("DistanceX", 24, 3, -1, 1, Q("16.068465 mm")),
    Sketcher.Constraint("DistanceY", 24, 3, -1, 1, Q("19.444953 mm")),
    Sketcher.Constraint("DistanceX", 26, 3, -1, 1, Q("25.044465 mm")),
    Sketcher.Constraint("DistanceY", 28, 3, -1, 1, Q("20.780644 mm")),
    Sketcher.Constraint("DistanceX", 32, 3, -1, 1, Q("1.570193 mm")),
    Sketcher.Constraint("DistanceY", 40, 3, -1, 1, Q("21.290842 mm")),
    Sketcher.Constraint("DistanceX", -1, 1, 41, 3, Q("1.570193 mm")),
    Sketcher.Constraint("DistanceX", -1, 1, 49, 3, Q("16.068465 mm")),
    Sketcher.Constraint("DistanceX", -1, 1, 50, 3, Q("12.414697 mm")),
    Sketcher.Constraint("DistanceY", 50, 3, -1, 1, Q("22.300643 mm")),
    Sketcher.Constraint("DistanceX", -1, 1, 54, 3, Q("27.604988 mm")),
    Sketcher.Constraint("DistanceY", -1, 1, 56, 3, Q("6.286506 mm")),
    Sketcher.Constraint("DistanceY", 58, 3, -1, 1, Q("10.743632 mm")),
    Sketcher.Constraint("DistanceX", -1, 1, 62, 3, Q("31.396112 mm")),
    Sketcher.Constraint("DistanceX", -1, 1, 64, 3, Q("16.068465 mm")),
    Sketcher.Constraint("DistanceY", -1, 1, 64, 3, Q("19.444953 mm")),
    Sketcher.Constraint("DistanceX", -1, 1, 66, 3, Q("25.044465 mm")),
    Sketcher.Constraint("DistanceY", -1, 1, 68, 3, Q("20.780644 mm")),
    Sketcher.Constraint("DistanceX", -1, 1, 72, 3, Q("1.570193 mm")),
    Sketcher.Constraint("DistanceX", 10, 2, -1, 1, Q("21.753433 mm")),
    Sketcher.Constraint("DistanceX", 14, 1, -1, 1, Q("25.163665 mm")),
    Sketcher.Constraint("DistanceX", 21, 1, -1, 1, Q("20.020273 mm")),
    Sketcher.Constraint("DistanceX", -1, 1, 38, 1, Q("5.517872 mm")),
    Sketcher.Constraint("DistanceX", -1, 1, 50, 2, Q("21.753433 mm")),
    Sketcher.Constraint("DistanceX", -1, 1, 54, 1, Q("25.163665 mm")),
    Sketcher.Constraint("DistanceX", -1, 1, 61, 1, Q("20.020273 mm")),
    Sketcher.Constraint("DistanceX", 78, 1, -1, 1, Q("5.517872 mm")),
])
pad1 = body.newObject("PartDesign::Pad", "Pad")
pad1.Profile = sketch1
pad1.Length = 42.1

# Sketch on XZ plane
sketch2 = body.newObject("Sketcher::SketchObject", "Sketch001")
sketch2.AttachmentSupport = (doc.getObject("XZ_Plane"), [""])
sketch2.MapMode = "FlatFace"
sketch2.addGeometry([
    Part.ArcOfCircle(Part.Circle(V(21.8, 16, 0), V(0, 0, 1), 16), math.radians(-90), math.radians(-64)),  # 0
    Part.LineSegment(V(21.8, 0, 0), V(38.8, 0, 0)),  # 1
    Part.LineSegment(V(38.8, 0, 0), V(38.8, 42.1, 0)),  # 2
    Part.LineSegment(V(38.8, 42.1, 0), V(21.8, 42.1, 0)),  # 3
    Part.ArcOfCircle(Part.Circle(V(21.8, 26.1, 0), V(0, 0, 1), 16), math.radians(64), math.radians(90)),  # 4
    Part.LineSegment(V(28.8, 40.5, 0), V(28.8, 34.7, 0)),  # 5
    Part.ArcOfCircle(Part.Circle(V(21.8, 49.1, 0), V(0, 0, 1), 16), math.radians(-90), math.radians(-64)),  # 6
    Part.LineSegment(V(21.8, 33.1, 0), V(17.5, 33.1, 0)),  # 7
    Part.LineSegment(V(17.5, 33.1, 0), V(17.5, 25.6, 0)),  # 8
    Part.LineSegment(V(17.5, 25.6, 0), V(21.8, 25.6, 0)),  # 9
    Part.ArcOfCircle(Part.Circle(V(21.8, 9.5, 0), V(0, 0, 1), 16), math.radians(64), math.radians(90)),  # 10
    Part.LineSegment(V(28.8, 23.9, 0), V(28.8, 18.1, 0)),  # 11
    Part.ArcOfCircle(Part.Circle(V(21.8, 32.6, 0), V(0, 0, 1), 16), math.radians(-90), math.radians(-64)),  # 12
    Part.LineSegment(V(21.8, 16.6, 0), V(17.5, 16.6, 0)),  # 13
    Part.LineSegment(V(17.5, 16.6, 0), V(17.5, 9, 0)),  # 14
    Part.LineSegment(V(17.5, 9, 0), V(21.8, 9, 0)),  # 15
    Part.ArcOfCircle(Part.Circle(V(21.8, -7, 0), V(0, 0, 1), 16), math.radians(64), math.radians(90)),  # 16
    Part.LineSegment(V(28.8, 7.4, 0), V(28.8, 1.6, 0)),  # 17
], False)
sketch2.addConstraint([
    Sketcher.Constraint("Tangent", 0, 1, 1, 1),
    Sketcher.Constraint("Coincident", 1, 2, 2, 1),
    Sketcher.Constraint("Coincident", 2, 2, 3, 1),
    Sketcher.Constraint("Tangent", 3, 2, 4, 2),
    Sketcher.Constraint("Coincident", 4, 1, 5, 1),
    Sketcher.Constraint("Coincident", 5, 2, 6, 2),
    Sketcher.Constraint("Tangent", 6, 1, 7, 1),
    Sketcher.Constraint("Coincident", 7, 2, 8, 1),
    Sketcher.Constraint("Coincident", 8, 2, 9, 1),
    Sketcher.Constraint("Tangent", 9, 2, 10, 2),
    Sketcher.Constraint("Coincident", 10, 1, 11, 1),
    Sketcher.Constraint("Coincident", 11, 2, 12, 2),
    Sketcher.Constraint("Tangent", 12, 1, 13, 1),
    Sketcher.Constraint("Coincident", 13, 2, 14, 1),
    Sketcher.Constraint("Coincident", 14, 2, 15, 1),
    Sketcher.Constraint("Tangent", 15, 2, 16, 2),
    Sketcher.Constraint("Coincident", 16, 1, 17, 1),
    Sketcher.Constraint("Coincident", 17, 2, 0, 2),
    Sketcher.Constraint("Horizontal", 1),
    Sketcher.Constraint("Vertical", 2),
    Sketcher.Constraint("Horizontal", 3),
    Sketcher.Constraint("Vertical", 5),
    Sketcher.Constraint("Horizontal", 7),
    Sketcher.Constraint("Vertical", 8),
    Sketcher.Constraint("Horizontal", 9),
    Sketcher.Constraint("Vertical", 11),
    Sketcher.Constraint("Horizontal", 13),
    Sketcher.Constraint("Vertical", 14),
    Sketcher.Constraint("Horizontal", 15),
    Sketcher.Constraint("Vertical", 17),
    Sketcher.Constraint("Equal", 0, 4),
    Sketcher.Constraint("Equal", 4, 6),
    Sketcher.Constraint("Equal", 6, 10),
    Sketcher.Constraint("Equal", 10, 12),
    Sketcher.Constraint("Equal", 12, 16),
    Sketcher.Constraint("PointOnObject", 0, 1, -1),
    Sketcher.Constraint("Vertical", 0, 3, 4, 3),
    Sketcher.Constraint("Vertical", 4, 3, 6, 3),
    Sketcher.Constraint("Vertical", 6, 3, 10, 3),
    Sketcher.Constraint("Vertical", 10, 3, 12, 3),
    Sketcher.Constraint("Vertical", 12, 3, 16, 3),
    Sketcher.Constraint("Vertical", 5, 2, 10, 1),
    Sketcher.Constraint("Vertical", 8, 2, 13, 2),
    Sketcher.Constraint("Vertical", 11, 2, 16, 1),
    Sketcher.Constraint("Equal", 5, 11),
    Sketcher.Constraint("Equal", 8, 14),
    Sketcher.Constraint("Equal", 11, 17),
    Sketcher.Constraint("DistanceY", 2, 1, 2, 2, Q("42.1 mm")),
    Sketcher.Constraint("DistanceY", 5, 2, 5, 1, Q("5.8 mm")),
    Sketcher.Constraint("DistanceY", -1, 1, 14, 2, Q("9 mm")),
    Sketcher.Constraint("DistanceX", 4, 1, 2, 2, Q("10 mm")),
    Sketcher.Constraint("DistanceX", -1, 1, 7, 2, Q("17.5 mm")),
    Sketcher.Constraint("DistanceX", -1, 1, 1, 2, Q("38.75 mm")),
    Sketcher.Constraint("Radius", 0, Q("16.000002 mm")),
])
groove = body.newObject("PartDesign::Groove", "Groove")
groove.Profile = sketch2
groove.ReferenceAxis = (sketch2, ["V_Axis"])
groove.Angle = 360

# Sketch on XY plane
sketch3 = body.newObject("Sketcher::SketchObject", "Sketch002")
sketch3.AttachmentSupport = (doc.getObject("XY_Plane"), [""])
sketch3.MapMode = "FlatFace"
sketch3.addGeometry(Part.Circle(V(0, 0, 0), V(0, 0, 1), 18), False)
sketch3.addConstraint([
    Sketcher.Constraint("Coincident", 0, 3, -1, 1),
    Sketcher.Constraint("Diameter", 0, Q("35 mm")),
])
pad2 = body.newObject("PartDesign::Pad", "Pad001")
pad2.Profile = sketch3
pad2.Length = 55

# Sketch on XY plane
sketch4 = body.newObject("Sketcher::SketchObject", "Sketch003")
sketch4.AttachmentSupport = (doc.getObject("XY_Plane"), [""])
sketch4.MapMode = "FlatFace"
sketch4.addGeometry(Part.Circle(V(0, 0, 0), V(0, 0, 1), 6), False)
sketch4.addConstraint([
    Sketcher.Constraint("Coincident", 0, 3, -1, 1),
    Sketcher.Constraint("Diameter", 0, Q("12 mm")),
])
pocket1 = body.newObject("PartDesign::Pocket", "Pocket")
pocket1.Profile = sketch4
pocket1.Type = "ThroughAll"
pocket1.Midplane = True

doc.recompute()
